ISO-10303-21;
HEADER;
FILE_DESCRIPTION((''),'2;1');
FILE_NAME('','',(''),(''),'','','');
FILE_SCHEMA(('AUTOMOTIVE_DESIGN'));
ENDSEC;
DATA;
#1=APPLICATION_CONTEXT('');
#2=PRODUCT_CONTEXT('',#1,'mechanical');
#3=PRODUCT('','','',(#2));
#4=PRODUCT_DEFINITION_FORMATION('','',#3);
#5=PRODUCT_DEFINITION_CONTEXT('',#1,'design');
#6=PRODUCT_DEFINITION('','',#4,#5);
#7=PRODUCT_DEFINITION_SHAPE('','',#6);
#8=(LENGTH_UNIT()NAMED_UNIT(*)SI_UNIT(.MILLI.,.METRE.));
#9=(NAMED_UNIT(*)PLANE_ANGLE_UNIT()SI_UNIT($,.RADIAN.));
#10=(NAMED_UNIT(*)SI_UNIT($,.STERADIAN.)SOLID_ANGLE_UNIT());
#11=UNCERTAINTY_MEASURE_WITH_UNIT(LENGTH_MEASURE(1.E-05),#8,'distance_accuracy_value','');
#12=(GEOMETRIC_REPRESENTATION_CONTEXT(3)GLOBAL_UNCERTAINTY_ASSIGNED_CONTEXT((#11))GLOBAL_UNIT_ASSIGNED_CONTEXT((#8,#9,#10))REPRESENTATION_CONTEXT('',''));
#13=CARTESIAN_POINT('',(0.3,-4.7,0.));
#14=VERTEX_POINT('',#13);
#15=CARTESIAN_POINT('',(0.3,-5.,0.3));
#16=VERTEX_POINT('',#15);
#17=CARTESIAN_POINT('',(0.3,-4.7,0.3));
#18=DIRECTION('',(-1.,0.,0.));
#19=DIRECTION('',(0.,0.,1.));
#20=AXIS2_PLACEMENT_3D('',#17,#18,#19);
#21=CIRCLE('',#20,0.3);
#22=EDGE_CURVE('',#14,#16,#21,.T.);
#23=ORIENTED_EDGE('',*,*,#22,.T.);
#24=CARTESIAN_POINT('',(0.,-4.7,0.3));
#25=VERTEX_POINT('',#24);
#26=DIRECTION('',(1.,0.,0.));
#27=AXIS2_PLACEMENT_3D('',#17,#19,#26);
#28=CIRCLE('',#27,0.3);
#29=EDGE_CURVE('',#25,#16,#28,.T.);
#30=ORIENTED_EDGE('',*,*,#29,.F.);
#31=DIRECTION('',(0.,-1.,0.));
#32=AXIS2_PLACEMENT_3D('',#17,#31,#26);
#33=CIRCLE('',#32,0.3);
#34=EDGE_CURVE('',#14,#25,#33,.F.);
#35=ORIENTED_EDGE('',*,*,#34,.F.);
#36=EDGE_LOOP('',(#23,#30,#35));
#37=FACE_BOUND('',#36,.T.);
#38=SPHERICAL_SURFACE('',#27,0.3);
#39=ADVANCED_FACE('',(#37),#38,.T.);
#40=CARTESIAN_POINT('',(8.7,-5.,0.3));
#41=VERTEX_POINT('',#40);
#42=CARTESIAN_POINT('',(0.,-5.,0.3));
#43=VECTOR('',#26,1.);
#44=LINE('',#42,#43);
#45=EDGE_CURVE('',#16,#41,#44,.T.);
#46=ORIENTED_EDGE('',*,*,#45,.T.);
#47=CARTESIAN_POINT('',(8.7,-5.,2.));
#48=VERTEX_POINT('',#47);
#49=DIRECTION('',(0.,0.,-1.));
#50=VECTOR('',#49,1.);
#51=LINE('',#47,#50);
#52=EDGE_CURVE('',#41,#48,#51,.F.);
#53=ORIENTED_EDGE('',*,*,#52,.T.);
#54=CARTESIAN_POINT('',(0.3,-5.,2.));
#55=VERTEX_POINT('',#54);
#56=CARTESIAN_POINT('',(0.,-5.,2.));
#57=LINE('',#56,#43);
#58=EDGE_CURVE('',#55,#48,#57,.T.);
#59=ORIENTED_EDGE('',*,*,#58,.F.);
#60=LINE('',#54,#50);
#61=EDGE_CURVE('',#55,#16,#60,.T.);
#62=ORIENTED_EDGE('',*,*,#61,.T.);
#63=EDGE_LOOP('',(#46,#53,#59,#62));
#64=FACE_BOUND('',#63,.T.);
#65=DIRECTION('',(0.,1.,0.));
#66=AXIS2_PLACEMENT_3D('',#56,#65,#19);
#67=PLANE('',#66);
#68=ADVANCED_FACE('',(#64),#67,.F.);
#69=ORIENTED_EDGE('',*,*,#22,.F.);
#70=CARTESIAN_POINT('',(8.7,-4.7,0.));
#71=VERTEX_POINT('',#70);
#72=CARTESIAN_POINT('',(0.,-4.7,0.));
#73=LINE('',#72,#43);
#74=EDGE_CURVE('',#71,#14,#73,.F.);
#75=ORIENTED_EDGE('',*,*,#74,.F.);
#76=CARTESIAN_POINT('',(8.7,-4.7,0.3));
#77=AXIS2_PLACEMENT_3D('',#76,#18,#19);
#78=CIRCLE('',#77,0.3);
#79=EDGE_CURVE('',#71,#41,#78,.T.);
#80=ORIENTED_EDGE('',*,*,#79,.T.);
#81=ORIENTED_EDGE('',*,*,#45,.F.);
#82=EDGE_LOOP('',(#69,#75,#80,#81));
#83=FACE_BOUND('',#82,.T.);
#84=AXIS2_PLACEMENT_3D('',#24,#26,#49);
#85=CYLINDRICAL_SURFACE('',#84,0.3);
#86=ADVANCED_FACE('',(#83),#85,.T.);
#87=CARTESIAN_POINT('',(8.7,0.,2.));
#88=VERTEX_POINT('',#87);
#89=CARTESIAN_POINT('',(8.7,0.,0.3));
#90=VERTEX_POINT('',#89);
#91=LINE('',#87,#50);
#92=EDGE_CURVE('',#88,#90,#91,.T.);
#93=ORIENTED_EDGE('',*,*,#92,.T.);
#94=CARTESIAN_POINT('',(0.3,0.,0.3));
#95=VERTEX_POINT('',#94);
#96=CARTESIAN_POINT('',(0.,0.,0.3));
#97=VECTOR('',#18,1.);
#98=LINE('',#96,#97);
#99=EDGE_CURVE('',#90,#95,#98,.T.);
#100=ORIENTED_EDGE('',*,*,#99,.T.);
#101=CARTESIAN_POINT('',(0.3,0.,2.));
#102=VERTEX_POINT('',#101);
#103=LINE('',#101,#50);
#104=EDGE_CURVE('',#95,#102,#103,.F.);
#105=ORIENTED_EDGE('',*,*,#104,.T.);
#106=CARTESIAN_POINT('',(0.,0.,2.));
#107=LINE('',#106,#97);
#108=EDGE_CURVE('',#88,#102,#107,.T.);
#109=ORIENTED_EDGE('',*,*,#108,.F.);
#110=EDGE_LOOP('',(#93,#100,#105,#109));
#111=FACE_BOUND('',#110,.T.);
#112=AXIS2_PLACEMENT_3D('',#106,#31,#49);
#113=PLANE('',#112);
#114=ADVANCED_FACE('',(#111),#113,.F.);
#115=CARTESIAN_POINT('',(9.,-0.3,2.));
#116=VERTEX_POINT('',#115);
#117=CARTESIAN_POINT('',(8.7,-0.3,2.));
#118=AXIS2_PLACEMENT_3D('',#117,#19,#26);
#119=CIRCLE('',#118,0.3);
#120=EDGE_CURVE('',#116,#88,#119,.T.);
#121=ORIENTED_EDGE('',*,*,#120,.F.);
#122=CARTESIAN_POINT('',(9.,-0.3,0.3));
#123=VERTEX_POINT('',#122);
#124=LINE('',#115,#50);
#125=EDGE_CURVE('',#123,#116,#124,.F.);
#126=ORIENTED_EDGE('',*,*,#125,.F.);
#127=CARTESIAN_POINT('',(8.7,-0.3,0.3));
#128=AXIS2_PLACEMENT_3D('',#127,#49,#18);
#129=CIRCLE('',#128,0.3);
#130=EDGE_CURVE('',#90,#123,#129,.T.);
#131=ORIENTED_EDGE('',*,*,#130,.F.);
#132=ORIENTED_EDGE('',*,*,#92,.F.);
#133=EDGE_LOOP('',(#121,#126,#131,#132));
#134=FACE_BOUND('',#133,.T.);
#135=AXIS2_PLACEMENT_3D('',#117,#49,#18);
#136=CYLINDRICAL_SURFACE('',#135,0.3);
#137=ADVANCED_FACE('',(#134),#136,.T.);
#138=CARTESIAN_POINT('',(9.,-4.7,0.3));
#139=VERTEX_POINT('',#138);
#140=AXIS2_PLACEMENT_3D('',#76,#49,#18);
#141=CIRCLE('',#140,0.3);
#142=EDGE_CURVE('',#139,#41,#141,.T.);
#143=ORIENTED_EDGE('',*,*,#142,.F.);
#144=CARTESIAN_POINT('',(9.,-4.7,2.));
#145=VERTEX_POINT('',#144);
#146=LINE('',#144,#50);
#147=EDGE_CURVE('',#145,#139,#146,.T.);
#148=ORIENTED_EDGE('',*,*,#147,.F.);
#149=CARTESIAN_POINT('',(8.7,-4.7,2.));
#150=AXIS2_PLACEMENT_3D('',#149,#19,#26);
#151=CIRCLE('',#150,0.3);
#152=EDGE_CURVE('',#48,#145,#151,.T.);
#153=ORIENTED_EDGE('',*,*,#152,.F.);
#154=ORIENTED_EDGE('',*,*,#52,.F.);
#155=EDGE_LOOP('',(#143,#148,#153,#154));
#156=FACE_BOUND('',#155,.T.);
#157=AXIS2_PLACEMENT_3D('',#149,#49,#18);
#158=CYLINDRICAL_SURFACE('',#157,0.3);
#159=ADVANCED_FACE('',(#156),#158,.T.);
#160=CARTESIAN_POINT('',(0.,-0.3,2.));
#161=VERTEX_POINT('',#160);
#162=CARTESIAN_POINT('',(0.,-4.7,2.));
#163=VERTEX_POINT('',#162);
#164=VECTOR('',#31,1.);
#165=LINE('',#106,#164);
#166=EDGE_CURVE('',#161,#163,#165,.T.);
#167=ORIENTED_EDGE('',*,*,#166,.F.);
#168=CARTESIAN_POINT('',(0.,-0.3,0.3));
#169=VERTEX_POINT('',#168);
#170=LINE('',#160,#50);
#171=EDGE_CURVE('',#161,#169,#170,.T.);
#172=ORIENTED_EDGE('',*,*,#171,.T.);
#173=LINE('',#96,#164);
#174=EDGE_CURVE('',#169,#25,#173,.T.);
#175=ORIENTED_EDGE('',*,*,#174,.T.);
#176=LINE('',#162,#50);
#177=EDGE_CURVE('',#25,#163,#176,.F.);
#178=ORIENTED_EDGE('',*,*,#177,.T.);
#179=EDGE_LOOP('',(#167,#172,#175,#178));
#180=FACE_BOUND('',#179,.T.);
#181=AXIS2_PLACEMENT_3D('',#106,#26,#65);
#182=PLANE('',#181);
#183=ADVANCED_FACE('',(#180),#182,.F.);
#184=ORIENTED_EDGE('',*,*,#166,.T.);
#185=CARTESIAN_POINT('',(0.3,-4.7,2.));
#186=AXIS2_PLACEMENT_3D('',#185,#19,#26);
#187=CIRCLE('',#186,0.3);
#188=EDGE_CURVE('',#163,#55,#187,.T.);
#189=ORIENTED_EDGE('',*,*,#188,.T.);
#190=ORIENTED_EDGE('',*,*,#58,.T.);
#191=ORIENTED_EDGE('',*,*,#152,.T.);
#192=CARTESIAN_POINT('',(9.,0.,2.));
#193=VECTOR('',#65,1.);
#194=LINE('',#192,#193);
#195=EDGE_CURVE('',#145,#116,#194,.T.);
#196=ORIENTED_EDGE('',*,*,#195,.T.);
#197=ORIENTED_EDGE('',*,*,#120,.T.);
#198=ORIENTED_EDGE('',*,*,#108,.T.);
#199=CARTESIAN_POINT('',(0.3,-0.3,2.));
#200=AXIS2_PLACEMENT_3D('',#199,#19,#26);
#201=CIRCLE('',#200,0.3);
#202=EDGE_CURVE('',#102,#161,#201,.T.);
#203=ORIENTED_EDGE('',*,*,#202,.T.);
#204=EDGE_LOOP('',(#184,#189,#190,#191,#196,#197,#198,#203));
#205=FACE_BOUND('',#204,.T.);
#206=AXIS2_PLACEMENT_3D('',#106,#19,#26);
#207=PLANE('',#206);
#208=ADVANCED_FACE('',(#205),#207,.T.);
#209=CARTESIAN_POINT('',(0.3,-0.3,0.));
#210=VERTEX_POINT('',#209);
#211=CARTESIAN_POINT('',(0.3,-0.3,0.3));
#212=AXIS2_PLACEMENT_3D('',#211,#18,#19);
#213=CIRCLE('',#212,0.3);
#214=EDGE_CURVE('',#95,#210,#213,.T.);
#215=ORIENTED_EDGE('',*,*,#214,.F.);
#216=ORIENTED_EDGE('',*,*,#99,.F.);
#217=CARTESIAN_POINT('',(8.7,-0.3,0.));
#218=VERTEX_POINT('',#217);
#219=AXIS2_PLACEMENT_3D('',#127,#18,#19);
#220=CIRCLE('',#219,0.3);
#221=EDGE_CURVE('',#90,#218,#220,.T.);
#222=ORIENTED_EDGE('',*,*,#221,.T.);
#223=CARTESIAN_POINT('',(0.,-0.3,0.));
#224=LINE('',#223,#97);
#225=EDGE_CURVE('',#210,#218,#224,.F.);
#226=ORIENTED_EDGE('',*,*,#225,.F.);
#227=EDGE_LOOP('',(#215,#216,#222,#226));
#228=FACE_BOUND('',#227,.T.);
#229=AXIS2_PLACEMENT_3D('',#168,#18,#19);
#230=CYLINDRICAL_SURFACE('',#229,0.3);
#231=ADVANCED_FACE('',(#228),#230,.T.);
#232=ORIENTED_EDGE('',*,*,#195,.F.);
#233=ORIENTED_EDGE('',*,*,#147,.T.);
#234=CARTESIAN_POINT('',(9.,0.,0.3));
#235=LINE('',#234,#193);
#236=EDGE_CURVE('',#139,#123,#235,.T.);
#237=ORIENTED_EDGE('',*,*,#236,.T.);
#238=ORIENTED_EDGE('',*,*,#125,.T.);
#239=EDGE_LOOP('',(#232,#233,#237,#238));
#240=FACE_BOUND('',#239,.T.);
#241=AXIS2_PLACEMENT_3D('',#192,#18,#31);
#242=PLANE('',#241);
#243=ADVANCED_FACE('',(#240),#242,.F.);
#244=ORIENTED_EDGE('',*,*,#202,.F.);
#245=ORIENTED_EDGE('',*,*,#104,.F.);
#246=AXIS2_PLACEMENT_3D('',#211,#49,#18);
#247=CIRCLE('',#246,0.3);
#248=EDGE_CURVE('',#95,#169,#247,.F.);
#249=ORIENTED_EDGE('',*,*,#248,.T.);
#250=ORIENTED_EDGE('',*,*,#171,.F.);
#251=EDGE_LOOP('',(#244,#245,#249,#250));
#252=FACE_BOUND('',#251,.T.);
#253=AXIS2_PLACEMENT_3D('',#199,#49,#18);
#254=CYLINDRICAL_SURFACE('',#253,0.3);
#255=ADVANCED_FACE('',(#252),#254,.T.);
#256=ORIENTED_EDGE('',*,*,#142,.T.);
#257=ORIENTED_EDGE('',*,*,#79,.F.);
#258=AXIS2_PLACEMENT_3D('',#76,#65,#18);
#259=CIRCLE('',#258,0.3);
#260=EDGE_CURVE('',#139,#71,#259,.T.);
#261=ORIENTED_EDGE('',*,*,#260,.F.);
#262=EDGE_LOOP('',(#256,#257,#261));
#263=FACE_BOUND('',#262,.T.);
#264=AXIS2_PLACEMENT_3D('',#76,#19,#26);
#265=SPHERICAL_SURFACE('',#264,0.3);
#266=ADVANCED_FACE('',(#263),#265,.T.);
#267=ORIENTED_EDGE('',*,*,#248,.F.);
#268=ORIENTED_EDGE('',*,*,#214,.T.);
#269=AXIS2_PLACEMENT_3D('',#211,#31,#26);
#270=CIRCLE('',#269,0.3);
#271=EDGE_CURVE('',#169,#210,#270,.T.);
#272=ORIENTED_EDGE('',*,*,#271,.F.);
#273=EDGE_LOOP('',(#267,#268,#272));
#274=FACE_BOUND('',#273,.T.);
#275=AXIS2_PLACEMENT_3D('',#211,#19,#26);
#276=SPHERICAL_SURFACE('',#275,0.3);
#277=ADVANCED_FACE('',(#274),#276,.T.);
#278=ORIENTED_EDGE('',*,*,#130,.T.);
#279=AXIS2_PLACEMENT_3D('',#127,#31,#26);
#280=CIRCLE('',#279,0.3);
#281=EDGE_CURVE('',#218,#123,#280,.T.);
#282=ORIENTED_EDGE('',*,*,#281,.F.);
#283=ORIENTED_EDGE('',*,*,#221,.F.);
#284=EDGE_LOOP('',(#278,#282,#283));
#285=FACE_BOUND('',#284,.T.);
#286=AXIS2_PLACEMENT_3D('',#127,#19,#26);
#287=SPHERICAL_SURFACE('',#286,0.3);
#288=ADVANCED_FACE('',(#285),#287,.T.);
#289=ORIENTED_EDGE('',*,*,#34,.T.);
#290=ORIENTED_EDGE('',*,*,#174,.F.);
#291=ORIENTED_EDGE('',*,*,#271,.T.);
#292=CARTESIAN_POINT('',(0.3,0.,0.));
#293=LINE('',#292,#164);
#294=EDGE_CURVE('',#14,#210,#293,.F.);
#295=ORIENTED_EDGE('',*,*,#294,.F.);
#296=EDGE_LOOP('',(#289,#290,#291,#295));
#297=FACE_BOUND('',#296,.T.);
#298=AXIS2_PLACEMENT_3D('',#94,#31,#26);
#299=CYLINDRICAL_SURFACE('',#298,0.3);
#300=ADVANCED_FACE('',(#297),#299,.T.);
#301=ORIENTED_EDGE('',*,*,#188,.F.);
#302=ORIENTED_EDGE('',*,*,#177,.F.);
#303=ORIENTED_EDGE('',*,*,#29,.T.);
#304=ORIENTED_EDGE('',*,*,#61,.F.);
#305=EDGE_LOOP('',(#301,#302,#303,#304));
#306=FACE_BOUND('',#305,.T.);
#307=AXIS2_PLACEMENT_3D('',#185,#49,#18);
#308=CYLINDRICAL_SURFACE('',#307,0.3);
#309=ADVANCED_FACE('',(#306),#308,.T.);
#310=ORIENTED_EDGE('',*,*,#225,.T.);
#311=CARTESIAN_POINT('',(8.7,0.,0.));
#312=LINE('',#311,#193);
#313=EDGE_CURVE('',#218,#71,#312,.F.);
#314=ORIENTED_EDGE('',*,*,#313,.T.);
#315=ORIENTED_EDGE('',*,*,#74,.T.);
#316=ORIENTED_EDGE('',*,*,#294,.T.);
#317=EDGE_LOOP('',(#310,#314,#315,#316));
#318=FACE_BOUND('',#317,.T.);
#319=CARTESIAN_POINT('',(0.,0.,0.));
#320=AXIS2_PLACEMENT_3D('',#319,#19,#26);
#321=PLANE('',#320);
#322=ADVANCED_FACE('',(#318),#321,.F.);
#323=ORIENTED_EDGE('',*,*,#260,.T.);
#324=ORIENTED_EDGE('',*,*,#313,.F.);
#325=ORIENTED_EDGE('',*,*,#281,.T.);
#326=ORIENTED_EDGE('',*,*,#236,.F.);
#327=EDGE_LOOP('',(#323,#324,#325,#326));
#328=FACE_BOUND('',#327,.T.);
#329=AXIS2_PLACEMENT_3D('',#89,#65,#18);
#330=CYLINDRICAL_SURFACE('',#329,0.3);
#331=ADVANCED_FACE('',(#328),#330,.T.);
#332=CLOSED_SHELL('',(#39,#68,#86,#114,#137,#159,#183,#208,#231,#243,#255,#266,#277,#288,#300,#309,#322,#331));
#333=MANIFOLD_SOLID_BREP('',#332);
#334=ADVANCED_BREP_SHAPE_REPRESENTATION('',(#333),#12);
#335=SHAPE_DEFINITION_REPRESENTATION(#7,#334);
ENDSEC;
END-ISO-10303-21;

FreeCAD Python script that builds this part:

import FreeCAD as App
import Part
import Sketcher
from FreeCAD import Vector
Q = App.Units.Quantity


def edges_at(feature, points):
    """Names of the edges that pass closest to the given points."""
    edges = feature.Shape.Edges
    near = lambda p: min(range(len(edges)), key=lambda i: edges[i].distToShape(Part.Vertex(*p))[0])
    return sorted({f"Edge{near(p) + 1}" for p in points})

doc = App.newDocument("Part")
body = doc.addObject("PartDesign::Body", "Body")

# Sketch on XY plane
sketch1 = body.newObject("Sketcher::SketchObject", "Sketch")
sketch1.AttachmentSupport = (doc.getObject("XY_Plane"), [""])
sketch1.MapMode = "FlatFace"
sketch1.addGeometry([
    Part.LineSegment(Vector(0, 0, 0), Vector(0, -5, 0)),
    Part.LineSegment(Vector(0, -5, 0), Vector(9, -5, 0)),
    Part.LineSegment(Vector(9, -5, 0), Vector(9, 0, 0)),
    Part.LineSegment(Vector(9, 0, 0), Vector(0, 0, 0)),
], False)
sketch1.addConstraint([
    Sketcher.Constraint("Coincident", 0, 2, 1, 1),
    Sketcher.Constraint("Coincident", 1, 2, 2, 1),
    Sketcher.Constraint("Coincident", 2, 2, 3, 1),
    Sketcher.Constraint("Coincident", 3, 2, 0, 1),
    Sketcher.Constraint("Vertical", 0),
    Sketcher.Constraint("Horizontal", 1),
    Sketcher.Constraint("Vertical", 2),
    Sketcher.Constraint("Horizontal", 3),
    Sketcher.Constraint("Coincident", 3, 2, -1, 1),
    Sketcher.Constraint("DistanceX", 1, 1, 1, 2, Q("9 mm")),
    Sketcher.Constraint("DistanceY", 0, 2, 0, 1, Q("5 mm")),
])
pad1 = body.newObject("PartDesign::Pad", "Pad")
pad1.Profile = sketch1
pad1.Length = 2
doc.recompute()

fillet = body.newObject("PartDesign::Fillet", "Fillet")
fillet.Base = (pad1, edges_at(pad1, [(0, 0, 1)]))
fillet.Radius = 0.3
doc.recompute()

fillet2 = body.newObject("PartDesign::Fillet", "Fillet001")
fillet2.Base = (fillet, edges_at(fillet, [(0, -2.65, 0), (0.088, -0.088, 0), (4.65, 0, 0)]))
fillet2.Radius = 0.3
doc.recompute()

fillet3 = body.newObject("PartDesign::Fillet", "Fillet002")
fillet3.Base = (fillet2, edges_at(fillet2, [(9, -0.088, 0.088), (9, -2.65, 0), (9, 0, 1.15)]))
fillet3.Radius = 0.3
doc.recompute()

fillet4 = body.newObject("PartDesign::Fillet", "Fillet003")
fillet4.Base = (fillet3, edges_at(fillet3, [
    (4.5, -5, 0),
    (0.088, -5, 0.088),
    (8.912, -5, 0.088),
    (9, -5, 1.15),
    (0, -5, 1.15),
]))
fillet4.Radius = 0.3

doc.recompute()
